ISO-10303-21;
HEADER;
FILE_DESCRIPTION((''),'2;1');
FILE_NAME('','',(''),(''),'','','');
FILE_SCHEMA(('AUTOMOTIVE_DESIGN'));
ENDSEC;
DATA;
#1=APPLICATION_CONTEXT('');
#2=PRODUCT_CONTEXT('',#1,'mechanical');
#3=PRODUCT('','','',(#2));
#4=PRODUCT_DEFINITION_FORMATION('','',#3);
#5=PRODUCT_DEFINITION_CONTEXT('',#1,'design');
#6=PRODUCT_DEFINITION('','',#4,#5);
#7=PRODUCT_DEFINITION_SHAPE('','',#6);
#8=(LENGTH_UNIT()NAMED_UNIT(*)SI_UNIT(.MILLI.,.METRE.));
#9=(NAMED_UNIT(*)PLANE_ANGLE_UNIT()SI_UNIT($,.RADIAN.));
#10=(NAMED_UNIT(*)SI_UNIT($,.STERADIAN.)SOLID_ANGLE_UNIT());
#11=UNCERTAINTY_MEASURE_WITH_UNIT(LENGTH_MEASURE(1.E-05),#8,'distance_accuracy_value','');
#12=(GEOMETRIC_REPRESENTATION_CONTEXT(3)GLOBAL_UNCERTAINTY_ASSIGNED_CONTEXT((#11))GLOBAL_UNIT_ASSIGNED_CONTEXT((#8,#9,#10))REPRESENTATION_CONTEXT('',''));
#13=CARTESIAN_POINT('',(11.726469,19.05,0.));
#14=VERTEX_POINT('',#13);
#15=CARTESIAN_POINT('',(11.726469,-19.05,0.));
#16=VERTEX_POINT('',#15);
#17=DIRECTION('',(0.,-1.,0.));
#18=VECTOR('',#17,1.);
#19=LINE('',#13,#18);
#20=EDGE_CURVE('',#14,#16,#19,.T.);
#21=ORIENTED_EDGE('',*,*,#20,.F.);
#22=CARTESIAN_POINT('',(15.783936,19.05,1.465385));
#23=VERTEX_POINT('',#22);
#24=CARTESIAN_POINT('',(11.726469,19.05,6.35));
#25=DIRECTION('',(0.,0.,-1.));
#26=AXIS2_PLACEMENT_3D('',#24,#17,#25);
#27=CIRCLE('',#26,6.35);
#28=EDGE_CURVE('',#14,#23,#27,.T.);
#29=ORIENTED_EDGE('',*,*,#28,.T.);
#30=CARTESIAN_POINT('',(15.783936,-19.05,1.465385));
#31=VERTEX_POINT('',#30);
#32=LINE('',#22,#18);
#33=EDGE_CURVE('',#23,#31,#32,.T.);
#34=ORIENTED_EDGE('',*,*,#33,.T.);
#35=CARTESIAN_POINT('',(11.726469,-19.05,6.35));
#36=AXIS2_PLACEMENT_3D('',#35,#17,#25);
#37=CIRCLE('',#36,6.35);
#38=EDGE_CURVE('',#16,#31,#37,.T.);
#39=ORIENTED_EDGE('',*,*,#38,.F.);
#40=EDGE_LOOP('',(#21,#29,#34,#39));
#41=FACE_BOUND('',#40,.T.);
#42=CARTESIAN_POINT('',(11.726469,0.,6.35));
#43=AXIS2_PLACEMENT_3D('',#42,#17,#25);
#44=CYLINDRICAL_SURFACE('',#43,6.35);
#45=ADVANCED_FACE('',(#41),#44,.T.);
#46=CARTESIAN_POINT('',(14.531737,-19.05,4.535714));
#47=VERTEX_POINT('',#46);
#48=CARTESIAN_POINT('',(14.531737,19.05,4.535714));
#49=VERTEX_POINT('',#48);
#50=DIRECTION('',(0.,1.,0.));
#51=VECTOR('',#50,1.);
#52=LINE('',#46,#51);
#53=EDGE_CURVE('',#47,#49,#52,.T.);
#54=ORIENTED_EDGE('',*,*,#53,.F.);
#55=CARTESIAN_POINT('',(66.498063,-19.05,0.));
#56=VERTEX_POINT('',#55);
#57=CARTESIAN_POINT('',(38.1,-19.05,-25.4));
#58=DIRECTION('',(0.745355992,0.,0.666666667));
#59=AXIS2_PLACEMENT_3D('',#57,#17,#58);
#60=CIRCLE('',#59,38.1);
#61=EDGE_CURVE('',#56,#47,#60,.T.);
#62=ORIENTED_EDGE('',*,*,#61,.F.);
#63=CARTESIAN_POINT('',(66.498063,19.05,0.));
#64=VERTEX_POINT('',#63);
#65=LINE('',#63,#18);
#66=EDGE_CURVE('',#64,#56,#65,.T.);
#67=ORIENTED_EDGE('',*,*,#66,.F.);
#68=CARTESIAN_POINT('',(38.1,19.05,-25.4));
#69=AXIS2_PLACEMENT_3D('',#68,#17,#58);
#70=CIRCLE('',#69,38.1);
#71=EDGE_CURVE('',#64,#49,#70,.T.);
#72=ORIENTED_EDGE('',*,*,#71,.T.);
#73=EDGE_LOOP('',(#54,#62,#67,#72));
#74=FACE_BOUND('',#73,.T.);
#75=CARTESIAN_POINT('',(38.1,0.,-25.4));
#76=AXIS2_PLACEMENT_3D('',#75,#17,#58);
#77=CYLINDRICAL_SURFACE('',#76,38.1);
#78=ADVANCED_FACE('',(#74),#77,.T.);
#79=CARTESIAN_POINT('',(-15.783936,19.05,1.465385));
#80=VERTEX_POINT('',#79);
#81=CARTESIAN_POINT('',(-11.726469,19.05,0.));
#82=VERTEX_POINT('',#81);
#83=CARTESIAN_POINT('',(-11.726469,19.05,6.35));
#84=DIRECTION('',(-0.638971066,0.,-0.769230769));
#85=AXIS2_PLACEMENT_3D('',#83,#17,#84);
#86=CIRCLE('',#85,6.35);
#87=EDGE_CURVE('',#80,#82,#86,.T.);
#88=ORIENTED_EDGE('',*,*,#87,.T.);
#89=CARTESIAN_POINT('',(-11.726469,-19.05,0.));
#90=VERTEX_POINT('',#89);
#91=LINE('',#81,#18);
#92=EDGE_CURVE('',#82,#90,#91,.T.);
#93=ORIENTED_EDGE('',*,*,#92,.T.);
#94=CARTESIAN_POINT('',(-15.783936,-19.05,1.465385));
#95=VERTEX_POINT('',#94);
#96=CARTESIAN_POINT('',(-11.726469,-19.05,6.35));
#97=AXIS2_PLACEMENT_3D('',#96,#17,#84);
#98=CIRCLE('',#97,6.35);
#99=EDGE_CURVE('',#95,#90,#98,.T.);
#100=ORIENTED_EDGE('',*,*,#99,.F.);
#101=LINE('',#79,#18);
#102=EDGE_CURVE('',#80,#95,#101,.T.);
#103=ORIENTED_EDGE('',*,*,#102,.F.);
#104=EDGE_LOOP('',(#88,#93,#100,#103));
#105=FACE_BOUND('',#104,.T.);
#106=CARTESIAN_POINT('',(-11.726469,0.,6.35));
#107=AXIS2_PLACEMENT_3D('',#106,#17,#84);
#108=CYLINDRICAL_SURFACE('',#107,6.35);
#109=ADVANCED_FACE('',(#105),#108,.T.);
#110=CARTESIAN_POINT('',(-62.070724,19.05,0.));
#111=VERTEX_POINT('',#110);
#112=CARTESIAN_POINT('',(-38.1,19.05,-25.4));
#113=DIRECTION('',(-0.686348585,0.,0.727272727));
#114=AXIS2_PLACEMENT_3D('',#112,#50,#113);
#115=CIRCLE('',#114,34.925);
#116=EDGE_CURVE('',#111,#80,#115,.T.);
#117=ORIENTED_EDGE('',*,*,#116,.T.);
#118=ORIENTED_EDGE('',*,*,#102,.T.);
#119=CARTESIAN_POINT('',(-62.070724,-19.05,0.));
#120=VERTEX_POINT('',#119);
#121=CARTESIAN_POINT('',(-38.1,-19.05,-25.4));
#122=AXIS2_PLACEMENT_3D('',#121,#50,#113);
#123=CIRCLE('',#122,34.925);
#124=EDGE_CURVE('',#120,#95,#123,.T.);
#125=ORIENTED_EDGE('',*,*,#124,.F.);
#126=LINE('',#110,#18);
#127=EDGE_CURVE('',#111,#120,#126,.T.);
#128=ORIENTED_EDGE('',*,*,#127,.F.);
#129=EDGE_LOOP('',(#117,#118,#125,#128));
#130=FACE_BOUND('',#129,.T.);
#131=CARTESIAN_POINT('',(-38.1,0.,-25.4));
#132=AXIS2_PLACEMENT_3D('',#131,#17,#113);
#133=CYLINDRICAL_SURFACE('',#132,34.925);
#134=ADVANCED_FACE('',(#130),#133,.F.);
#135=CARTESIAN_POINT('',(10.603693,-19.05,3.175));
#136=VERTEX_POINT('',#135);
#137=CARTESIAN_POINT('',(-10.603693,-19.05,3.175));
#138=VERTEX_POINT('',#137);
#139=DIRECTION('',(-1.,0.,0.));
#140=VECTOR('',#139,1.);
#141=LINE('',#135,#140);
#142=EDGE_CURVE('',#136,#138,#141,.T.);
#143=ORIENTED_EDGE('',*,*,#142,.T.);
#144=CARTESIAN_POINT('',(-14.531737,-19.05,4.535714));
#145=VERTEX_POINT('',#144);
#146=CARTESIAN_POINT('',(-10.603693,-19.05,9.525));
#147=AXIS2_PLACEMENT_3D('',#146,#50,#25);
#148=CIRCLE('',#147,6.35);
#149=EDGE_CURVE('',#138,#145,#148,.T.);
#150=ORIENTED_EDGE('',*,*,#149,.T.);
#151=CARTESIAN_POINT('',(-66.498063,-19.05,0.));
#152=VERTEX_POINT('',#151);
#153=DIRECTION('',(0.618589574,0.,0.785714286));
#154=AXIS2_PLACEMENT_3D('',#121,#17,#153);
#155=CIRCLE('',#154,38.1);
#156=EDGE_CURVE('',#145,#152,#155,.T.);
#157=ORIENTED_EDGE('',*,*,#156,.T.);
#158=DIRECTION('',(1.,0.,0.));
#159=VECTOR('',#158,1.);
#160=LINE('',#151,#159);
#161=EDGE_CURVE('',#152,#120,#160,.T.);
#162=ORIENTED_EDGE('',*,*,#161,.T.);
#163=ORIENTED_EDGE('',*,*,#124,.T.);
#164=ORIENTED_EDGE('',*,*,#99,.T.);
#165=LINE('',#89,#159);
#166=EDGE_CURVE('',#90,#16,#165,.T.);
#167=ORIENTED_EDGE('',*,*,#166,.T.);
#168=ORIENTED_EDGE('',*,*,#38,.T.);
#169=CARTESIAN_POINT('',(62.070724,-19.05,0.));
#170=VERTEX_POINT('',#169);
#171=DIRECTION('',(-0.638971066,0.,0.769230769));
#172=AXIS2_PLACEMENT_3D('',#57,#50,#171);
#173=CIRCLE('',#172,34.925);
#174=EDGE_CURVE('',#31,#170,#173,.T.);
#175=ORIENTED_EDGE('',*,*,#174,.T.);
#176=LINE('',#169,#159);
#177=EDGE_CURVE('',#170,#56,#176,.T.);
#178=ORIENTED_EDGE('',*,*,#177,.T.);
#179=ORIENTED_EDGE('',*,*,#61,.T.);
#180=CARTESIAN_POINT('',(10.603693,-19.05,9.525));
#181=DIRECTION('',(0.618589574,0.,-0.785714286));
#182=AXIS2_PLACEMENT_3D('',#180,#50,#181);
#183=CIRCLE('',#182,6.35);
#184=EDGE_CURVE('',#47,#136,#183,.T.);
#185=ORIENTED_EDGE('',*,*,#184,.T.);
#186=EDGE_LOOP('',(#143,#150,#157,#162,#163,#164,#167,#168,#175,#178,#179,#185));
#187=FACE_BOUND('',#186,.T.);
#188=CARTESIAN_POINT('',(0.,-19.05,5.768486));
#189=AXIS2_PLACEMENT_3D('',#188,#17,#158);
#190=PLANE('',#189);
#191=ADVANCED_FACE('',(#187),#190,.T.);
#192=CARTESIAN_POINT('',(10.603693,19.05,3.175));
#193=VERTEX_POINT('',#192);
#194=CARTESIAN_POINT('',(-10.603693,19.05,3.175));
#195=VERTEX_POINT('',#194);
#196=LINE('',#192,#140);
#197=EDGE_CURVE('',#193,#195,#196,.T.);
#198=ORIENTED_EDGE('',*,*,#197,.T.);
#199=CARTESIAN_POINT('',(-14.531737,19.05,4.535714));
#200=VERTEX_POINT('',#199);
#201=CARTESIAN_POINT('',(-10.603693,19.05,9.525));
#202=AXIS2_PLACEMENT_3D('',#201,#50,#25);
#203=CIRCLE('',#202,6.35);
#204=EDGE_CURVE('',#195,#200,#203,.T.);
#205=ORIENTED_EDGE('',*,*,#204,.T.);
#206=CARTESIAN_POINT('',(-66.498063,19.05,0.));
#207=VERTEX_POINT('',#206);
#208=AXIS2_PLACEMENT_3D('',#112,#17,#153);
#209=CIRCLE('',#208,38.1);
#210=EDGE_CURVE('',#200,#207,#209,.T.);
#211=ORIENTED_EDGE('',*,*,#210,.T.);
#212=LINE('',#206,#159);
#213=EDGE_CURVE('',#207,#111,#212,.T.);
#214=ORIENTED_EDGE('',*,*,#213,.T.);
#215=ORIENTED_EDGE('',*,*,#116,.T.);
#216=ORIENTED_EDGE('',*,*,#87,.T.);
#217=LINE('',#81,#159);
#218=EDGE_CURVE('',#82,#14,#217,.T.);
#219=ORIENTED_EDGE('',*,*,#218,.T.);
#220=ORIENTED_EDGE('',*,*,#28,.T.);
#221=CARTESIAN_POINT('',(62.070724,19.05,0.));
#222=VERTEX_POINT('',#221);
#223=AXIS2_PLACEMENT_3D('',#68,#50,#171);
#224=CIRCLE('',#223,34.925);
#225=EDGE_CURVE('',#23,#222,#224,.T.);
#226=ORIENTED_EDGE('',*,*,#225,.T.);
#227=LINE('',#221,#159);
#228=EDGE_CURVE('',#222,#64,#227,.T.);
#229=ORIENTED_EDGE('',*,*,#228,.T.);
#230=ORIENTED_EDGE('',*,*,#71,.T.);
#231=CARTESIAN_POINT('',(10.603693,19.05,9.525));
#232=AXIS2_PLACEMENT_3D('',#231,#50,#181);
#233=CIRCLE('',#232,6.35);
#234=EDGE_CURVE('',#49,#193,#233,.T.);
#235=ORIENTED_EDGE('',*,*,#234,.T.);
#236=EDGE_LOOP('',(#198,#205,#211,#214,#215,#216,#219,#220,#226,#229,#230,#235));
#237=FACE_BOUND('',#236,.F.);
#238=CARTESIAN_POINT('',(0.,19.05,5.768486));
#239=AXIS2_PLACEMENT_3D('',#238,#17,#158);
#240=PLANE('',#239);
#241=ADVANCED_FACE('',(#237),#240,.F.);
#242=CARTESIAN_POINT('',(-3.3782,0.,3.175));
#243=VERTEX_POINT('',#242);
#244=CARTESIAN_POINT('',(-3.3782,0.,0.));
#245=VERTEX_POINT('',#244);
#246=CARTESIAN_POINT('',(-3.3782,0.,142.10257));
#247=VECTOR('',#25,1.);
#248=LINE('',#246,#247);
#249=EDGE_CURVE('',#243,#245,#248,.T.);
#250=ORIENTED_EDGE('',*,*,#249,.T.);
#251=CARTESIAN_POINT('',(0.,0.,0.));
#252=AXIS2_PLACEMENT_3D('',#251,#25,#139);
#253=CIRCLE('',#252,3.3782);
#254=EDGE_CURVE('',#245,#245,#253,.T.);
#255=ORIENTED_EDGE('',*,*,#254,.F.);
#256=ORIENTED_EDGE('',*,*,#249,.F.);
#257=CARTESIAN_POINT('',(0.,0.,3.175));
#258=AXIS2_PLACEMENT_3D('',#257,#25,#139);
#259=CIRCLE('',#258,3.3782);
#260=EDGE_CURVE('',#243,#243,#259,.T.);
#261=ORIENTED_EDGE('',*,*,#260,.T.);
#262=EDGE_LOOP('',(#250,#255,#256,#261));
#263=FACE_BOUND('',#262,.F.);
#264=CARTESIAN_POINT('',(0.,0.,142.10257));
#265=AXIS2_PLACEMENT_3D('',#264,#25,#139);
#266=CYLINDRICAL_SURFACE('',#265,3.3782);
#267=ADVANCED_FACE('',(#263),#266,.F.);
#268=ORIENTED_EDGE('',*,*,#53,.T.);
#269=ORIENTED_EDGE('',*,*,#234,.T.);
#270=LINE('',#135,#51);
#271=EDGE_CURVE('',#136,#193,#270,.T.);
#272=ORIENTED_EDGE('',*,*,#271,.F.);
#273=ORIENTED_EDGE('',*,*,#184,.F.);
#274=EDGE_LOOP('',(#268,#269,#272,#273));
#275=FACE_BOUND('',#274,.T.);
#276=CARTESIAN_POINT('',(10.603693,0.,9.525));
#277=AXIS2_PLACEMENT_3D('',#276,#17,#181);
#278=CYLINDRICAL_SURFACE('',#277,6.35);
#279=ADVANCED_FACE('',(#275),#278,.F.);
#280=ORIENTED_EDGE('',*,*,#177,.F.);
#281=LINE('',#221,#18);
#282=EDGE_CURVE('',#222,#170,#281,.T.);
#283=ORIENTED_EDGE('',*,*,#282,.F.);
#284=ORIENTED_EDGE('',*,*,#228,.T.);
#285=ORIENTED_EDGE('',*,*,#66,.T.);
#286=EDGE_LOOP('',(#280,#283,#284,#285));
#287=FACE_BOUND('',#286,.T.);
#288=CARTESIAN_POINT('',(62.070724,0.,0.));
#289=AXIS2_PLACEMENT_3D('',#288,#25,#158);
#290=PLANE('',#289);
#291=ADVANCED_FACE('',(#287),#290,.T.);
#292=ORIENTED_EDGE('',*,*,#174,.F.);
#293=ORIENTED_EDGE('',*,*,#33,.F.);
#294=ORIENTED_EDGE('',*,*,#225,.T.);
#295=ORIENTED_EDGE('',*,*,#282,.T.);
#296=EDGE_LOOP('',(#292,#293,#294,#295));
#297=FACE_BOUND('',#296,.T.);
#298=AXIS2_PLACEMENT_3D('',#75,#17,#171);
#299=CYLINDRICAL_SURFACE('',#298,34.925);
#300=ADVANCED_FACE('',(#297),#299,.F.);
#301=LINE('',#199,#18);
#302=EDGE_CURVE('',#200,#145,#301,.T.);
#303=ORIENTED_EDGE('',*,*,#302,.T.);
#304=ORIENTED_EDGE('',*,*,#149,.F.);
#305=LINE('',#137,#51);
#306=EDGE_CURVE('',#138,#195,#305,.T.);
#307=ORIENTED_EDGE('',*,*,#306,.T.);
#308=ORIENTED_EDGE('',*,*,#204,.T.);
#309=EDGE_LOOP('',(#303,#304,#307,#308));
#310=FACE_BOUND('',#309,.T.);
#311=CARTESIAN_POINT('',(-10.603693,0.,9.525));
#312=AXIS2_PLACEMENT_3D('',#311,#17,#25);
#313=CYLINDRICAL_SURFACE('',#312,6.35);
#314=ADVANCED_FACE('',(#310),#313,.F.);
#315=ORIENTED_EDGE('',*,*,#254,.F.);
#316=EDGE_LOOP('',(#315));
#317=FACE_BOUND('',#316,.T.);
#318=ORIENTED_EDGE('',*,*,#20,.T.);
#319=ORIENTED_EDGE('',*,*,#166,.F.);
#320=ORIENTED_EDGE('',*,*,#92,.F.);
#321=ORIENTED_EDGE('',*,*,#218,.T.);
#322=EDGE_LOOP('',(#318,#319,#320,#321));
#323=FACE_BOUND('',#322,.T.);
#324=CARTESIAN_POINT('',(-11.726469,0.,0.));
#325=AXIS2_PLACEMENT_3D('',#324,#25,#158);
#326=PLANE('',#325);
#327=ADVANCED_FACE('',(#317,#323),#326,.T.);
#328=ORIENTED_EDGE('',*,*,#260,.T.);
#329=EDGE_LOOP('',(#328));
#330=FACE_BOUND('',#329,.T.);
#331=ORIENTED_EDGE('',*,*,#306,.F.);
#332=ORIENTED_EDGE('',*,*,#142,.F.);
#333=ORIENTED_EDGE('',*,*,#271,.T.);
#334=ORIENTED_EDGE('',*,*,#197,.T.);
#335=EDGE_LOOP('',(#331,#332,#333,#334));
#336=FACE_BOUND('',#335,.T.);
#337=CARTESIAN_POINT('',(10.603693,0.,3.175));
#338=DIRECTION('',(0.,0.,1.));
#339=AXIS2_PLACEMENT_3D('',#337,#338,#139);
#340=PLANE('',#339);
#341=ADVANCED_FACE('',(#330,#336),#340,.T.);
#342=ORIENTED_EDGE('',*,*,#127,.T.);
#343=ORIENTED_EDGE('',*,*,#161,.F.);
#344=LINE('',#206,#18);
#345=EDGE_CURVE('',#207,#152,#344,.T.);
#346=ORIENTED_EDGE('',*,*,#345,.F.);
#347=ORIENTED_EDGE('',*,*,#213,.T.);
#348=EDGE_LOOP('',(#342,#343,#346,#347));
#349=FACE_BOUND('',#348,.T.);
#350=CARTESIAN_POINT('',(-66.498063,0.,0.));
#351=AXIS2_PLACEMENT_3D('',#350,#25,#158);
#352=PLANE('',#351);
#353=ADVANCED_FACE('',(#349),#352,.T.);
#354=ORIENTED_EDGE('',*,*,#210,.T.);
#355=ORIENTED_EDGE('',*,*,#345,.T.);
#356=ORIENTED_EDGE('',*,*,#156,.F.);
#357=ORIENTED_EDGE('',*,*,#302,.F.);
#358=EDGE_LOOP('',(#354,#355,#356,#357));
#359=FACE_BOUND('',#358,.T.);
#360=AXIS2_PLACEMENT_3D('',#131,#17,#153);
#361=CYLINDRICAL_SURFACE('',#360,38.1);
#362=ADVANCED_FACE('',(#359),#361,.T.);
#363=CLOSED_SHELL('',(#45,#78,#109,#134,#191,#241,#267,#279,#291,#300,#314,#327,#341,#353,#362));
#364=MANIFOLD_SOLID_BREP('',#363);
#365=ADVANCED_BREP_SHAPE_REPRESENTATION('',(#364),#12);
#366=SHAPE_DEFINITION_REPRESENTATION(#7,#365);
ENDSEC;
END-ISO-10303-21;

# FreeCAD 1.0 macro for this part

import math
import FreeCAD as App
import Part
import Sketcher
Q = App.Units.Quantity

doc = App.newDocument("Part")
body = doc.addObject("PartDesign::Body", "Body")

# Sketch on XZ plane
sketch1 = body.newObject("Sketcher::SketchObject", "Sketch")
sketch1.AttachmentSupport = (doc.getObject("XZ_Plane"), [""])
sketch1.MapMode = "FlatFace"
sketch1.addGeometry([
    Part.ArcOfCircle(Part.Circle(App.Vector(-10.603693, 9.525, 0), App.Vector(0, 0, 1), 6.35), math.radians(-128.213211), math.radians(-90)),  # 0
    Part.ArcOfCircle(Part.Circle(App.Vector(-38.1, -25.4, 0), App.Vector(0, 0, 1), 38.1), math.radians(51.786789), math.radians(138.189685)),  # 1
    Part.LineSegment(App.Vector(-66.498063, 0, 0), App.Vector(-62.070724, 0, 0)),  # 2
    Part.ArcOfCircle(Part.Circle(App.Vector(-38.1, -25.4, 0), App.Vector(0, 0, 1), 34.925), math.radians(50.284863), math.radians(133.341758)),  # 3
    Part.ArcOfCircle(Part.Circle(App.Vector(-11.726469, 6.35, 0), App.Vector(0, 0, 1), 6.35), math.radians(-129.715137), math.radians(-90)),  # 4
    Part.LineSegment(App.Vector(-11.726469, 0, 0), App.Vector(11.726469, 0, 0)),  # 5
    Part.ArcOfCircle(Part.Circle(App.Vector(11.726469, 6.35, 0), App.Vector(0, 0, 1), 6.35), math.radians(-90), math.radians(-50.284863)),  # 6
    Part.ArcOfCircle(Part.Circle(App.Vector(38.1, -25.4, 0), App.Vector(0, 0, 1), 34.925), math.radians(46.658242), math.radians(129.715137)),  # 7
    Part.LineSegment(App.Vector(62.070724, 0, 0), App.Vector(66.498063, 0, 0)),  # 8
    Part.ArcOfCircle(Part.Circle(App.Vector(38.1, -25.4, 0), App.Vector(0, 0, 1), 38.1), math.radians(41.810315), math.radians(128.213211)),  # 9
    Part.ArcOfCircle(Part.Circle(App.Vector(10.603693, 9.525, 0), App.Vector(0, 0, 1), 6.35), math.radians(-90), math.radians(-51.786789)),  # 10
    Part.LineSegment(App.Vector(10.603693, 3.175, 0), App.Vector(-10.603693, 3.175, 0)),  # 11
], False)
sketch1.addConstraint([
    Sketcher.Constraint("Tangent", 0, 1, 1, 1),
    Sketcher.Constraint("Coincident", 1, 2, 2, 1),
    Sketcher.Constraint("Coincident", 2, 2, 3, 2),
    Sketcher.Constraint("Tangent", 3, 1, 4, 1),
    Sketcher.Constraint("Tangent", 4, 2, 5, 1),
    Sketcher.Constraint("Tangent", 5, 2, 6, 1),
    Sketcher.Constraint("Tangent", 6, 2, 7, 2),
    Sketcher.Constraint("Coincident", 7, 1, 8, 1),
    Sketcher.Constraint("Coincident", 8, 2, 9, 1),
    Sketcher.Constraint("Tangent", 9, 2, 10, 2),
    Sketcher.Constraint("Tangent", 10, 1, 11, 1),
    Sketcher.Constraint("Tangent", 11, 2, 0, 2),
    Sketcher.Constraint("Horizontal", 2),
    Sketcher.Constraint("Horizontal", 5),
    Sketcher.Constraint("Horizontal", 8),
    Sketcher.Constraint("Horizontal", 11),
    Sketcher.Constraint("Coincident", 3, 3, 1, 3),
    Sketcher.Constraint("Coincident", 9, 3, 7, 3),
    Sketcher.Constraint("Equal", 0, 4),
    Sketcher.Constraint("Equal", 4, 6),
    Sketcher.Constraint("Equal", 3, 7),
    Sketcher.Constraint("Equal", 1, 9),
    Sketcher.Constraint("Equal", 6, 10),
    Sketcher.Constraint("Symmetric", 4, 2, 5, 2, -1, 1),
    Sketcher.Constraint("Symmetric", 2, 2, 7, 1, -1, 1),
    Sketcher.Constraint("PointOnObject", 1, 2, -1),
    Sketcher.Constraint("Radius", 1, Q("1.5 in")),
    Sketcher.Constraint("Radius", 0, Q("0.25 in")),
    Sketcher.Constraint("DistanceY", 1, 3, -1, 1, Q("1 in")),
    Sketcher.Constraint("Radius", 3, Q("1.375 in")),
    Sketcher.Constraint("DistanceX", 1, 3, 7, 3, Q("3 in")),
    Sketcher.Constraint("DistanceY", -1, 1, 0, 3, Q("0.375 in")),
])
pad1 = body.newObject("PartDesign::Pad", "Pad")
pad1.Profile = sketch1
pad1.Length = Q("1.5 in")
pad1.Midplane = True

# Sketch on XY plane
sketch2 = body.newObject("Sketcher::SketchObject", "Sketch001")
sketch2.AttachmentSupport = (doc.getObject("XY_Plane"), [""])
sketch2.MapMode = "FlatFace"
sketch2.AttachmentOffset = App.Placement(App.Vector(0, 0, 0.125 * 25.4), App.Rotation())
sketch2.addGeometry(Part.Circle(App.Vector(0, 0, 0), App.Vector(0, 0, 1), 3.3782), False)
sketch2.addConstraint([
    Sketcher.Constraint("Coincident", 0, 3, -1, 1),
    Sketcher.Constraint("Diameter", 0, Q("0.266 in")),
])
doc.recompute()
hole = body.newObject("PartDesign::Hole", "Hole")
hole.Profile = sketch2
hole.ThreadType = "None"
hole.Diameter = Q("0.266 in")
hole.DepthType = "ThroughAll"

doc.recompute()
